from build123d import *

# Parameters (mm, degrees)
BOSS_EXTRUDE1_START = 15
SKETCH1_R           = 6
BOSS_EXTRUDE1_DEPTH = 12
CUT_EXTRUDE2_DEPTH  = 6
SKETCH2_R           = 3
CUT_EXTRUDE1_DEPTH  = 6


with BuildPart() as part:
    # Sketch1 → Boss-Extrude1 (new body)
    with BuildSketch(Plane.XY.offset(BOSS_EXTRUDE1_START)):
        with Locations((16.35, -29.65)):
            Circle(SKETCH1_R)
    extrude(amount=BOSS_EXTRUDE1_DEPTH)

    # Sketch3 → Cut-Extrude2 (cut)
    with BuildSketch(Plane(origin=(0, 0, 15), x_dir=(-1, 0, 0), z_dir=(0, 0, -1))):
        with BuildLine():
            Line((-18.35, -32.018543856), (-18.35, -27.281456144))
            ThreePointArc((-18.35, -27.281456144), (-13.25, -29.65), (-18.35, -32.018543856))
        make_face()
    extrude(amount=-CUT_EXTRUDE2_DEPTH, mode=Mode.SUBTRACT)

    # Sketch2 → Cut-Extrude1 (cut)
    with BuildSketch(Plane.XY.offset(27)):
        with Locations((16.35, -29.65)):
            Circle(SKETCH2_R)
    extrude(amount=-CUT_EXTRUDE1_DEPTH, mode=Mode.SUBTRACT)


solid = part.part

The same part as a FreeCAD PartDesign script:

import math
import FreeCAD as App
import Part
import Sketcher
from FreeCAD import Vector

doc = App.newDocument("Part")
body = doc.addObject("PartDesign::Body", "Body")

# Sketch on XY plane
sketch1 = body.newObject("Sketcher::SketchObject", "Sketch")
sketch1.AttachmentSupport = (doc.getObject("XY_Plane"), [""])
sketch1.MapMode = "FlatFace"
sketch1.AttachmentOffset = App.Placement(Vector(0, 0, 15), App.Rotation())
sketch1.addGeometry(Part.Circle(Vector(16, -30, 0), Vector(0, 0, 1), 6), False)
sketch1.addConstraint([
    Sketcher.Constraint("Diameter", 0, 12.0),
    Sketcher.Constraint("DistanceX", -1, 1, 0, 3, 16.35),
    Sketcher.Constraint("DistanceY", 0, 3, -1, 1, 29.65),
])
pad1 = body.newObject("PartDesign::Pad", "Pad")
pad1.Profile = sketch1
pad1.Length = 12

# Sketch on XY plane
sketch2 = body.newObject("Sketcher::SketchObject", "Sketch001")
sketch2.AttachmentSupport = (doc.getObject("XY_Plane"), [""])
sketch2.MapMode = "FlatFace"
sketch2.AttachmentOffset = App.Placement(Vector(0, 0, 15), App.Rotation())
sketch2.addGeometry([
    Part.LineSegment(Vector(18.4, -27.3, 0), Vector(18.4, -32, 0)),
    Part.ArcOfCircle(Part.Circle(Vector(16.4, -29.6, 0), Vector(0, 0, 1), 3.1), math.radians(50), math.radians(310)),
], False)
sketch2.addConstraint([
    Sketcher.Constraint("Coincident", 0, 1, 1, 1),
    Sketcher.Constraint("Coincident", 1, 2, 0, 2),
    Sketcher.Constraint("Vertical", 0),
    Sketcher.Constraint("Radius", 1, 3.1),
    Sketcher.Constraint("DistanceX", 1, 3, 0, 1, 2.0),
    Sketcher.Constraint("DistanceX", -1, 1, 1, 3, 16.35),
    Sketcher.Constraint("DistanceY", 1, 3, -1, 1, 29.65),
])
pocket1 = body.newObject("PartDesign::Pocket", "Pocket")
pocket1.Profile = sketch2
pocket1.Length = 6
pocket1.Reversed = True

# Sketch on XY plane
sketch3 = body.newObject("Sketcher::SketchObject", "Sketch002")
sketch3.AttachmentSupport = (doc.getObject("XY_Plane"), [""])
sketch3.MapMode = "FlatFace"
sketch3.AttachmentOffset = App.Placement(Vector(0, 0, 27), App.Rotation())
sketch3.addGeometry(Part.Circle(Vector(16.4, -29.6, 0), Vector(0, 0, 1), 3), False)
sketch3.addConstraint([
    Sketcher.Constraint("Diameter", 0, 6.0),
    Sketcher.Constraint("DistanceX", -1, 1, 0, 3, 16.35),
    Sketcher.Constraint("DistanceY", 0, 3, -1, 1, 29.65),
])
pocket2 = body.newObject("PartDesign::Pocket", "Pocket001")
pocket2.Profile = sketch3
pocket2.Length = 6

doc.recompute()
